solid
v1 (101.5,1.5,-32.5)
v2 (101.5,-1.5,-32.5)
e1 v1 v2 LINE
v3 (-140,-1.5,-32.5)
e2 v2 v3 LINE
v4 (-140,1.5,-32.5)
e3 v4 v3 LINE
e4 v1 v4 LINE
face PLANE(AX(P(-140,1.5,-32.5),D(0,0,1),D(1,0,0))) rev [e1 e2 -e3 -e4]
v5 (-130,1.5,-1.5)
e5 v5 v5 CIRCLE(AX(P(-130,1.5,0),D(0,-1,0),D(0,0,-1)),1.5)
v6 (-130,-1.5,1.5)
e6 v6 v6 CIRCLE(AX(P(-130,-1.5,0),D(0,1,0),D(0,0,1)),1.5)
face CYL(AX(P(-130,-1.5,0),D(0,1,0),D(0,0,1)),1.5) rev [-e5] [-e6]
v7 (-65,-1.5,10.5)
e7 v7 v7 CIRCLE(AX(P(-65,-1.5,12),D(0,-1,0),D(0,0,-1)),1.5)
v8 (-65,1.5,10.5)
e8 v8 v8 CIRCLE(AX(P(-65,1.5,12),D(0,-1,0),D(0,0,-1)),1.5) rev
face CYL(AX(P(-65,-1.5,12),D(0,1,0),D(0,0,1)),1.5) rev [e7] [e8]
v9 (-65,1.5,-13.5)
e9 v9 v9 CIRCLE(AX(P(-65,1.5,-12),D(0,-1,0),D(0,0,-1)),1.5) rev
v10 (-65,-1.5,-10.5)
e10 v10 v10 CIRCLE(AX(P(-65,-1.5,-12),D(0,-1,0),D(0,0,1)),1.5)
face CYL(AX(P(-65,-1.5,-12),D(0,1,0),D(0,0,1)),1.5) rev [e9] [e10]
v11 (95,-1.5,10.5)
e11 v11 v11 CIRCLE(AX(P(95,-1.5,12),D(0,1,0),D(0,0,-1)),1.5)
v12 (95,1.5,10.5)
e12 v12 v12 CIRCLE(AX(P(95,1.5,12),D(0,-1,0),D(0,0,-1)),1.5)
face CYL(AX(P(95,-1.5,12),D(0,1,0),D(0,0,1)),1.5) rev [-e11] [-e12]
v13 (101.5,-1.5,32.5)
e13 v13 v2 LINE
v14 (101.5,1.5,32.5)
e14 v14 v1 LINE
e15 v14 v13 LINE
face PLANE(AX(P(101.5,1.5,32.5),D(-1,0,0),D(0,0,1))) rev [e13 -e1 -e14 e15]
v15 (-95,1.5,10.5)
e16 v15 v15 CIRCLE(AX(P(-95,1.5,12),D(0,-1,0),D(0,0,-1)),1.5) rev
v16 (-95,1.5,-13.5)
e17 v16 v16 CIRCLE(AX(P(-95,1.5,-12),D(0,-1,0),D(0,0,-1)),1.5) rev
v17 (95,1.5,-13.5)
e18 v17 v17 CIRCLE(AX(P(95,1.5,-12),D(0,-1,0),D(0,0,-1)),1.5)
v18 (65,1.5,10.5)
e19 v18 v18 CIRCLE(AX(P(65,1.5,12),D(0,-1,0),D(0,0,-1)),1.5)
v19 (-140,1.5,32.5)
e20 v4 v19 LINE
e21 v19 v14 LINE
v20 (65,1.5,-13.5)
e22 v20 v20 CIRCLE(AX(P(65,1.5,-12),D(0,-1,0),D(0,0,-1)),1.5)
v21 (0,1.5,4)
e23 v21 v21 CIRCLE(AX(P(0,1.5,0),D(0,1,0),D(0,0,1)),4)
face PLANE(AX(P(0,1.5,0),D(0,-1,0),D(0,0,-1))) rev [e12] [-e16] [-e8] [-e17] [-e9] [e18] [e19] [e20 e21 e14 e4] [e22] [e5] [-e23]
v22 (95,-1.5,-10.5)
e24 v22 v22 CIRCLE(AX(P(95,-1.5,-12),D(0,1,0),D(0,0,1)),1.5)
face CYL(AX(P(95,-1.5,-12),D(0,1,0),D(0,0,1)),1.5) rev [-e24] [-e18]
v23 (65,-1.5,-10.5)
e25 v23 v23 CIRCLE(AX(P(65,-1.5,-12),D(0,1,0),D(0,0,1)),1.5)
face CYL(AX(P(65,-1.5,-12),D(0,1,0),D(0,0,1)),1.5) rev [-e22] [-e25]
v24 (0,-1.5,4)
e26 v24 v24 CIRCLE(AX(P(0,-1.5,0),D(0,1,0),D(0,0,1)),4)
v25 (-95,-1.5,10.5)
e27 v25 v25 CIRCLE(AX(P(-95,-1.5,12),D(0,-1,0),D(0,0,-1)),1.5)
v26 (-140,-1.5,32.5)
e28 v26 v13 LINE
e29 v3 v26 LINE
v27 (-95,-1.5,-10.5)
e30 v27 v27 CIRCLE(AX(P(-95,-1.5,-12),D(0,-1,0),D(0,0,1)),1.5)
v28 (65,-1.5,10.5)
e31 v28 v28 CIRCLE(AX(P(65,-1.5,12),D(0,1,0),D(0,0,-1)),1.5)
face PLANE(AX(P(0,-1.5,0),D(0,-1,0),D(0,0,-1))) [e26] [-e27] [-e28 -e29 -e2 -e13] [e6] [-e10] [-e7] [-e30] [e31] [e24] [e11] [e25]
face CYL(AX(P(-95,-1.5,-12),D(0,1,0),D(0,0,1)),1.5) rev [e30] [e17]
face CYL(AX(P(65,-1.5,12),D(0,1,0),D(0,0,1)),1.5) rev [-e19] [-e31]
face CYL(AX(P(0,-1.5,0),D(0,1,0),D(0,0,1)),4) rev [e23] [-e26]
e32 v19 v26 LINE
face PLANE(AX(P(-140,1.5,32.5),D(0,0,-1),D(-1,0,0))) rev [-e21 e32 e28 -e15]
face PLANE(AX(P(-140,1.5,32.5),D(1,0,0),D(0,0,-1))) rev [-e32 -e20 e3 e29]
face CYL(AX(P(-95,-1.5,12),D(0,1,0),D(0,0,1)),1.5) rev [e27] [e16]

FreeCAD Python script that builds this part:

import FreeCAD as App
import Part
import Sketcher
Q = App.Units.Quantity


def add_polygon(sketch, points):
    """Adds a closed chain of lines whose ends are joined by coincident constraints."""
    first, n = sketch.GeometryCount, len(points)
    for a, b in zip(points, points[1:] + points[:1]):
        sketch.addGeometry(Part.LineSegment(App.Vector(*a, 0), App.Vector(*b, 0)), False)
    for i in range(n):
        sketch.addConstraint(Sketcher.Constraint("Coincident", first + i, 2, first + (i + 1) % n, 1))

doc = App.newDocument("Part")
body = doc.addObject("PartDesign::Body", "Body")

# Sketch on XZ plane
sketch1 = body.newObject("Sketcher::SketchObject", "Sketch")
sketch1.AttachmentSupport = (doc.getObject("XZ_Plane"), [""])
sketch1.MapMode = "FlatFace"
add_polygon(sketch1, [(-140, -32), (-140, 32), (102, 32), (102, -32)])  # lines 0-3
sketch1.addConstraint([
    Sketcher.Constraint("Vertical", 0),
    Sketcher.Constraint("Horizontal", 1),
    Sketcher.Constraint("Vertical", 2),
    Sketcher.Constraint("Horizontal", 3),
    Sketcher.Constraint("DistanceY", 0, 1, 0, 2, Q("65 mm")),
    Sketcher.Constraint("DistanceX", 1, 1, 1, 2, Q("241.5 mm")),
    Sketcher.Constraint("DistanceX", 0, 2, -1, 1, Q("140 mm")),
    Sketcher.Constraint("DistanceY", -1, 1, 0, 2, Q("32.5 mm")),
])
pad1 = body.newObject("PartDesign::Pad", "Pad")
pad1.Profile = sketch1
pad1.Length = 3
pad1.Midplane = True

# Sketch on XZ plane
sketch2 = body.newObject("Sketcher::SketchObject", "Sketch001")
sketch2.AttachmentSupport = (doc.getObject("XZ_Plane"), [""])
sketch2.MapMode = "FlatFace"
sketch2.AttachmentOffset = App.Placement(App.Vector(0, 0, -1.5), App.Rotation())
sketch2.addGeometry(Part.Circle(App.Vector(0, 0, 0), App.Vector(0, 0, 1), 4), False)
sketch2.addConstraint([
    Sketcher.Constraint("Coincident", 0, 3, -1, 1),
    Sketcher.Constraint("Diameter", 0, Q("8 mm")),
])
pocket1 = body.newObject("PartDesign::Pocket", "Pocket")
pocket1.Profile = sketch2
pocket1.Type = "ThroughAll"
pocket1.Reversed = True

# Sketch on XZ plane
sketch3 = body.newObject("Sketcher::SketchObject", "Sketch002")
sketch3.AttachmentSupport = (doc.getObject("XZ_Plane"), [""])
sketch3.MapMode = "FlatFace"
sketch3.AttachmentOffset = App.Placement(App.Vector(0, 0, -1.5), App.Rotation())
sketch3.addGeometry([
    Part.Circle(App.Vector(65, -12, 0), App.Vector(0, 0, 1), 1.5),
    Part.Circle(App.Vector(95, -12, 0), App.Vector(0, 0, 1), 1.5),
    Part.Circle(App.Vector(95, 12, 0), App.Vector(0, 0, 1), 1.5),
    Part.Circle(App.Vector(65, 12, 0), App.Vector(0, 0, 1), 1.5),
], False)
sketch3.addConstraint([
    Sketcher.Constraint("Equal", 0, 1),
    Sketcher.Constraint("Equal", 1, 2),
    Sketcher.Constraint("Equal", 2, 3),
    Sketcher.Constraint("Symmetric", 1, 3, 2, 3, -1),
    Sketcher.Constraint("Symmetric", 0, 3, 3, 3, -1),
    Sketcher.Constraint("Horizontal", 0, 3, 1, 3),
    Sketcher.Constraint("Diameter", 0, Q("3 mm")),
    Sketcher.Constraint("DistanceX", -1, 1, 0, 3, Q("65 mm")),
    Sketcher.Constraint("DistanceY", 0, 3, -1, 1, Q("12 mm")),
    Sketcher.Constraint("DistanceX", -1, 1, 1, 3, Q("95 mm")),
])
pocket2 = body.newObject("PartDesign::Pocket", "Pocket001")
pocket2.Profile = sketch3
pocket2.Length = 289.508261
pocket2.Midplane = True
doc.recompute()

mirrored = body.newObject("PartDesign::Mirrored", "Mirrored")
mirrored.Originals = [pocket2]
mirrored.MirrorPlane = (doc.getObject("YZ_Plane"), [""])
body.Tip = mirrored

# Sketch on XZ plane
sketch4 = body.newObject("Sketcher::SketchObject", "Sketch003")
sketch4.AttachmentSupport = (doc.getObject("XZ_Plane"), [""])
sketch4.MapMode = "FlatFace"
sketch4.AttachmentOffset = App.Placement(App.Vector(0, 0, -1.5), App.Rotation())
sketch4.addGeometry(Part.Circle(App.Vector(-130, 0, 0), App.Vector(0, 0, 1), 1.5), False)
sketch4.addConstraint([
    Sketcher.Constraint("PointOnObject", 0, 3, -1),
    Sketcher.Constraint("Diameter", 0, Q("3 mm")),
    Sketcher.Constraint("DistanceX", 0, 3, -1, 1, Q("130 mm")),
])
pocket3 = body.newObject("PartDesign::Pocket", "Pocket002")
pocket3.Profile = sketch4
pocket3.Type = "ThroughAll"
pocket3.Midplane = True

doc.recompute()
